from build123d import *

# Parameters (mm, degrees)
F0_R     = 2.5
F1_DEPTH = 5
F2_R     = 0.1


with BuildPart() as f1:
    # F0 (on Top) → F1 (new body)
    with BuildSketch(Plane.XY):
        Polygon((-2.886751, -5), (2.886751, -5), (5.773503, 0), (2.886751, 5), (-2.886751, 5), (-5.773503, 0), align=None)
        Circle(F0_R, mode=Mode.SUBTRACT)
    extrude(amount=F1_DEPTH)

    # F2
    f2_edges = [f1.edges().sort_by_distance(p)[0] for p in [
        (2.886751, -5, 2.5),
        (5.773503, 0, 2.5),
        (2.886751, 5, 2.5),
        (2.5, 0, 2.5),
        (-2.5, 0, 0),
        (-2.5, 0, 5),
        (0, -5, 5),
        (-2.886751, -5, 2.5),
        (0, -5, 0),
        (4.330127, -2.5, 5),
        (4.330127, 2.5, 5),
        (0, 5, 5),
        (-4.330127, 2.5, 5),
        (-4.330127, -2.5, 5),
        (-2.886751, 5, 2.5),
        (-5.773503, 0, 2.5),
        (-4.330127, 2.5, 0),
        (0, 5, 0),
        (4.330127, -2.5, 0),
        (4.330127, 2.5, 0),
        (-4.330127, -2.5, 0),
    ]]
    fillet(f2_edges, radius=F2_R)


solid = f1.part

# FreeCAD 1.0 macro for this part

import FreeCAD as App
import Part
import Sketcher

V = App.Vector
Q = App.Units.Quantity

doc = App.newDocument("Part")
body = doc.addObject("PartDesign::Body", "Body")

sketch1 = body.newObject("Sketcher::SketchObject", "Sketch")
sketch1.AttachmentSupport = (doc.getObject("XY_Plane"), [""])
sketch1.MapMode = "FlatFace"
sketch1.addGeometry(Part.LineSegment(V(-2.886751, -5, 0), V(2.886751, -5, 0)), False)
sketch1.addGeometry(Part.LineSegment(V(2.886751, -5, 0), V(5.773503, 0, 0)), False)
sketch1.addGeometry(Part.LineSegment(V(5.773503, 0, 0), V(2.886751, 5, 0)), False)
sketch1.addGeometry(Part.LineSegment(V(2.886751, 5, 0), V(-2.886751, 5, 0)), False)
sketch1.addGeometry(Part.LineSegment(V(-2.886751, 5, 0), V(-5.773503, 0, 0)), False)
sketch1.addGeometry(Part.LineSegment(V(-5.773503, 0, 0), V(-2.886751, -5, 0)), False)
sketch1.addGeometry(Part.Circle(V(0, 0, 0), V(0, 0, 1), 2.5), False)
sketch1.addConstraint(Sketcher.Constraint("Coincident", 0, 2, 1, 1))
sketch1.addConstraint(Sketcher.Constraint("Coincident", 1, 2, 2, 1))
sketch1.addConstraint(Sketcher.Constraint("Coincident", 2, 2, 3, 1))
sketch1.addConstraint(Sketcher.Constraint("Coincident", 3, 2, 4, 1))
sketch1.addConstraint(Sketcher.Constraint("Coincident", 4, 2, 5, 1))
sketch1.addConstraint(Sketcher.Constraint("Coincident", 5, 2, 0, 1))
sketch1.addConstraint(Sketcher.Constraint("Horizontal", 0))
sketch1.addConstraint(Sketcher.Constraint("Horizontal", 3))
sketch1.addConstraint(Sketcher.Constraint("Coincident", 6, 3, -1, 1))
sketch1.addConstraint(Sketcher.Constraint("Symmetric", 0, 2, 3, 2, -1, 1))
sketch1.addConstraint(Sketcher.Constraint("Symmetric", 1, 2, 4, 2, -1, 1))
sketch1.addConstraint(Sketcher.Constraint("PointOnObject", 1, 2, -1))
sketch1.addConstraint(Sketcher.Constraint("Parallel", 2, 5))
sketch1.addConstraint(Sketcher.Constraint("Vertical", 0, 2, 2, 2))
sketch1.addConstraint(Sketcher.Constraint("Diameter", 6, Q("5 mm")))
sketch1.addConstraint(Sketcher.Constraint("Angle", 1, Q("59.999994 deg")))
sketch1.addConstraint(Sketcher.Constraint("DistanceY", 0, 2, -1, 1, Q("5 mm")))
sketch1.addConstraint(Sketcher.Constraint("DistanceX", 0, 1, 0, 2, Q("5.773502 mm")))
pad1 = body.newObject("PartDesign::Pad", "Pad")
pad1.Profile = sketch1
pad1.Length = 5
doc.recompute()

fillet = body.newObject("PartDesign::Fillet", "Fillet")
fillet.Base = (pad1, ["Edge1"])
fillet.UseAllEdges = True
fillet.Radius = 0.1

doc.recompute()
